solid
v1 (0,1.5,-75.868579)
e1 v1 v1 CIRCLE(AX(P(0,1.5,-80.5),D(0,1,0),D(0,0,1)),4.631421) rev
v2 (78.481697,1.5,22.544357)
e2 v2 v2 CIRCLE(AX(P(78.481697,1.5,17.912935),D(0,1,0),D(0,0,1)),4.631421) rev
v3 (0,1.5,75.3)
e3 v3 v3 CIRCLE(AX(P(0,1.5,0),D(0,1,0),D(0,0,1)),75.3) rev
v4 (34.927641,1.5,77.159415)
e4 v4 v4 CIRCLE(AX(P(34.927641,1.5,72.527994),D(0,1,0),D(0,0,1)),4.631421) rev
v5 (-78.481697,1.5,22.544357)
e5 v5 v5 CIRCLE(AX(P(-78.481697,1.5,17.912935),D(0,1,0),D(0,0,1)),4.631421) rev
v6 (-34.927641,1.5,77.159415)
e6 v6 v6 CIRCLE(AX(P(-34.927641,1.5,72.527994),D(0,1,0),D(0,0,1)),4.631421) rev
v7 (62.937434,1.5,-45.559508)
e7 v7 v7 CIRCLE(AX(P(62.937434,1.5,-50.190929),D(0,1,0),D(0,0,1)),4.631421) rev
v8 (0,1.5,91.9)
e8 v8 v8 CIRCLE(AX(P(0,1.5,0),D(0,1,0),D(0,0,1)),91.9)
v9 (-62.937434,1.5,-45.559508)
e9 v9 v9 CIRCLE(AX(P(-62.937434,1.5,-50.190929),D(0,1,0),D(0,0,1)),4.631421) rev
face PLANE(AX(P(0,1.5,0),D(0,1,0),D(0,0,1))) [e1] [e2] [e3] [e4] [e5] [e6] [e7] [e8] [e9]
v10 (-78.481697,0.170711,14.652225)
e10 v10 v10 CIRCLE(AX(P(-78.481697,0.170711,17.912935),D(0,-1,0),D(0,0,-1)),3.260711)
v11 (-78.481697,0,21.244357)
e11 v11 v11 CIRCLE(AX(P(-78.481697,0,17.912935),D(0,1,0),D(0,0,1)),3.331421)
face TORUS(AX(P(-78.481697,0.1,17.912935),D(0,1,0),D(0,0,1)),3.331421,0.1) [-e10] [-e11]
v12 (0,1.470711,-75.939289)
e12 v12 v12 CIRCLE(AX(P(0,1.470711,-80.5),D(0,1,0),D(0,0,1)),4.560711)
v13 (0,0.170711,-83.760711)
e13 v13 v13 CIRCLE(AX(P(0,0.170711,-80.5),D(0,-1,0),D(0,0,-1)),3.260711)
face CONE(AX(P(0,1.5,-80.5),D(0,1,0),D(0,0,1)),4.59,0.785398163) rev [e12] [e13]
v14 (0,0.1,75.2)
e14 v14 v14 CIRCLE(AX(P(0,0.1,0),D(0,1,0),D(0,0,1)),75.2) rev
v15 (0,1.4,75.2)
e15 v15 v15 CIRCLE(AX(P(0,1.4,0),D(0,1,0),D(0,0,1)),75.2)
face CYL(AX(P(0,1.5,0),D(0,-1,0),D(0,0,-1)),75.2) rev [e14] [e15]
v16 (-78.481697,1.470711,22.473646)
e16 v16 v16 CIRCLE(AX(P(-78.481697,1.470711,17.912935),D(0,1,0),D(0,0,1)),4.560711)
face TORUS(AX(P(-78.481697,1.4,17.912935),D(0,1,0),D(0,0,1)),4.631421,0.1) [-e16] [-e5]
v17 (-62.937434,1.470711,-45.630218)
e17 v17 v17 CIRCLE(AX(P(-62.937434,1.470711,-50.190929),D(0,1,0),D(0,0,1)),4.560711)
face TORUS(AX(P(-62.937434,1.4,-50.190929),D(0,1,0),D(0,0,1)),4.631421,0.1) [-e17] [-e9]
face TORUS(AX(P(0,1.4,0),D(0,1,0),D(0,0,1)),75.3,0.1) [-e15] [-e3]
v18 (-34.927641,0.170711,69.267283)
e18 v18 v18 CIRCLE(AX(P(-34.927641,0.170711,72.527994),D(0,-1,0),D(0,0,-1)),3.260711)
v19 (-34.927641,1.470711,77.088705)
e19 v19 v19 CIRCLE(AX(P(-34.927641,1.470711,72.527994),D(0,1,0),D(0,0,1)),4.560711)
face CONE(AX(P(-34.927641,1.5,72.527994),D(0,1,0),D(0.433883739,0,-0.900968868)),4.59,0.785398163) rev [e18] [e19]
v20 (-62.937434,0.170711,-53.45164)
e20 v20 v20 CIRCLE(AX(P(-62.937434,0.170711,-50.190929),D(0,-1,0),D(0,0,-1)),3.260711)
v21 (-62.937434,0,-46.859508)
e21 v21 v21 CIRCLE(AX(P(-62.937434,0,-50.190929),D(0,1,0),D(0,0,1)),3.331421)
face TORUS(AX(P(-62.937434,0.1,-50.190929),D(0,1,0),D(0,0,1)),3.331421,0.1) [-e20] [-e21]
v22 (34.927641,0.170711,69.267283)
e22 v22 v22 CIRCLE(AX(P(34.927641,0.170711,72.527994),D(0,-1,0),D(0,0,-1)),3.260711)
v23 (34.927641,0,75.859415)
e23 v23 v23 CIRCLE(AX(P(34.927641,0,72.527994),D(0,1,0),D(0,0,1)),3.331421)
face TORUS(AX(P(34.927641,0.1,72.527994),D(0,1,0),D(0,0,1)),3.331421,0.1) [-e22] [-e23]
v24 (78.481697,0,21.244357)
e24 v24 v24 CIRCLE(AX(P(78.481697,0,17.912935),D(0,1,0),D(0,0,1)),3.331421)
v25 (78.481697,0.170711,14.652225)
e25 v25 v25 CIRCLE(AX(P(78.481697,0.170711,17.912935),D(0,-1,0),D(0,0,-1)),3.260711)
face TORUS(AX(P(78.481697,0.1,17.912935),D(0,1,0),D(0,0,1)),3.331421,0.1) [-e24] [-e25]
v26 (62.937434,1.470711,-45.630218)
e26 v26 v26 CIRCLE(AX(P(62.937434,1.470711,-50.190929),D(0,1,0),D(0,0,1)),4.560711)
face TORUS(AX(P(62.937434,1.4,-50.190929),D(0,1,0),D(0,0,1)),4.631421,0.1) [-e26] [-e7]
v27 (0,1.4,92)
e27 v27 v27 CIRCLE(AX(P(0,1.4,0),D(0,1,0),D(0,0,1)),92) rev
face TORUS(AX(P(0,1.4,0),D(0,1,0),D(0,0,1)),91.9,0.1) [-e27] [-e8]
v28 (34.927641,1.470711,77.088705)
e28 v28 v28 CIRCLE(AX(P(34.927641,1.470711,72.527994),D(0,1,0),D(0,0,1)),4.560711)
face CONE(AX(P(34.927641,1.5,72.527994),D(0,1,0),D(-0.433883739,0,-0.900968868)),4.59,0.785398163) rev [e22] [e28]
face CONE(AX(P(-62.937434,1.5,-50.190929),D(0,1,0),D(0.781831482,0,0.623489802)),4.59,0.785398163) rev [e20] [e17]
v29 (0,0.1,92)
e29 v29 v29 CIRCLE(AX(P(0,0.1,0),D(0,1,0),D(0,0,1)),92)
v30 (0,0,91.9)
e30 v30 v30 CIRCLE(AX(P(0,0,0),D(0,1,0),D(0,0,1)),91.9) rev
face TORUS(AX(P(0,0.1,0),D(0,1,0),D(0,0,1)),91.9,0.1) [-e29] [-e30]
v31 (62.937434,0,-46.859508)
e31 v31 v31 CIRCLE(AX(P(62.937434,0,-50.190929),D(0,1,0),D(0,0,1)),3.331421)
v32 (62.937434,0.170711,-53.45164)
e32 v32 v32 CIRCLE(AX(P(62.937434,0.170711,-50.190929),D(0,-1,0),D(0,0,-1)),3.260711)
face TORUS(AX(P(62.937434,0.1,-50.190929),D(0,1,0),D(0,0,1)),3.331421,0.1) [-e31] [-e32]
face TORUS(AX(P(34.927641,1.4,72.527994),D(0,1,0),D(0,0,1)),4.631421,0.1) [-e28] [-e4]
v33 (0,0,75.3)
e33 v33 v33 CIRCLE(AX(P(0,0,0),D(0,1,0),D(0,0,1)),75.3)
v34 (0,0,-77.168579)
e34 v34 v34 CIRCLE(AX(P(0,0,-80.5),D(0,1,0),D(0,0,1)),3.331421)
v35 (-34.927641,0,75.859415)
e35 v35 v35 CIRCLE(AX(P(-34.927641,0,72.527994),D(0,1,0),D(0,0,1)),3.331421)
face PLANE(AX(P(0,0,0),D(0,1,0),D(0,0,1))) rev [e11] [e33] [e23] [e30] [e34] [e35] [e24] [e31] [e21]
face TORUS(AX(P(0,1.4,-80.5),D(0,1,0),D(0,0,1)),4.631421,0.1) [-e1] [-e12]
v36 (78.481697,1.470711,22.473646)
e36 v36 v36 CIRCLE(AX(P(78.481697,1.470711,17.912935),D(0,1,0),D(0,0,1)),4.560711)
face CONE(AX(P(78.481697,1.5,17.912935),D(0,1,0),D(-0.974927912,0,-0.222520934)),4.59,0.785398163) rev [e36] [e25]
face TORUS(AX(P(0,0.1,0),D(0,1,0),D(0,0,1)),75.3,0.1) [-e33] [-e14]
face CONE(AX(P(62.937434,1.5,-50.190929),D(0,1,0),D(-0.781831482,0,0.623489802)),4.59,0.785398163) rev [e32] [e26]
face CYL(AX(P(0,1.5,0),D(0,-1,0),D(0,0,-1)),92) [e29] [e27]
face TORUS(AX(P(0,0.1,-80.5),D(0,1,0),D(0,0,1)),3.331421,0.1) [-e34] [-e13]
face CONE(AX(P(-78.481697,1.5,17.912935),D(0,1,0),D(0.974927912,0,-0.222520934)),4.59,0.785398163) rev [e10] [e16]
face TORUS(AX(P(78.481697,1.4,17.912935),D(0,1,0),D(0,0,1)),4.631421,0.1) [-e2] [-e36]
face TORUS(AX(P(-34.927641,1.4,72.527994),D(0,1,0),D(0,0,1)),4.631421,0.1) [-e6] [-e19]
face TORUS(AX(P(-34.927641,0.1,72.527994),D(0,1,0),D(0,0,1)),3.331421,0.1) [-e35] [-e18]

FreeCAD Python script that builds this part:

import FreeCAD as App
import Part
import Sketcher
from FreeCAD import Vector
Q = App.Units.Quantity


def edges_at(feature, points):
    """Names of the edges that pass closest to the given points."""
    edges = feature.Shape.Edges
    near = lambda p: min(range(len(edges)), key=lambda i: edges[i].distToShape(Part.Vertex(*p))[0])
    return sorted({f"Edge{near(p) + 1}" for p in points})

doc = App.newDocument("Part")
body = doc.addObject("PartDesign::Body", "Body")

# Sketch on XZ plane
sketch1 = body.newObject("Sketcher::SketchObject", "Sketch")
sketch1.AttachmentSupport = (doc.getObject("XZ_Plane"), [""])
sketch1.MapMode = "FlatFace"
sketch1.addGeometry(Part.Circle(Vector(0, 0, 0), Vector(0, 0, 1), 92), False)
sketch1.addGeometry(Part.Circle(Vector(0, 0, 0), Vector(0, 0, 1), 75.2), False)
sketch1.addConstraint(Sketcher.Constraint("Coincident", 0, 3, -1, 1))
sketch1.addConstraint(Sketcher.Constraint("Coincident", 1, 3, -1, 1))
sketch1.addConstraint(Sketcher.Constraint("Diameter", 0, Q("184 mm")))
sketch1.addConstraint(Sketcher.Constraint("Diameter", 1, Q("150.4 mm")))
pad1 = body.newObject("PartDesign::Pad", "Pad")
pad1.Profile = sketch1
pad1.Length = 1.5
pad1.Reversed = True

# Sketch on YZ plane
sketch2 = body.newObject("Sketcher::SketchObject", "Sketch001")
sketch2.AttachmentSupport = (doc.getObject("YZ_Plane"), [""])
sketch2.MapMode = "FlatFace"
sketch2.addGeometry(Part.LineSegment(Vector(0, -80.5, 0), Vector(1.5, -80.5, 0)), False)
sketch2.addGeometry(Part.LineSegment(Vector(1.5, -80.5, 0), Vector(1.5, -75.91, 0)), False)
sketch2.addGeometry(Part.LineSegment(Vector(1.5, -75.91, 0), Vector(-0.84, -78.25, 0)), False)
sketch2.addGeometry(Part.LineSegment(Vector(-0.84, -78.25, 0), Vector(0, -78.25, 0)), False)
sketch2.addGeometry(Part.LineSegment(Vector(0, -78.25, 0), Vector(0, -80.5, 0)), False)
sketch2.addGeometry(Part.LineSegment(Vector(1.5, -80.5, 0), Vector(-0.84, -80.5, 0)), True)  # axis
sketch2.addConstraint(Sketcher.Constraint("Coincident", 0, 2, 1, 1))
sketch2.addConstraint(Sketcher.Constraint("Coincident", 1, 2, 2, 1))
sketch2.addConstraint(Sketcher.Constraint("Coincident", 2, 2, 3, 1))
sketch2.addConstraint(Sketcher.Constraint("Coincident", 3, 2, 4, 1))
sketch2.addConstraint(Sketcher.Constraint("Coincident", 4, 2, 0, 1))
sketch2.addConstraint(Sketcher.Constraint("Horizontal", 0))
sketch2.addConstraint(Sketcher.Constraint("Vertical", 1))
sketch2.addConstraint(Sketcher.Constraint("Horizontal", 3))
sketch2.addConstraint(Sketcher.Constraint("Vertical", 4))
sketch2.addConstraint(Sketcher.Constraint("Horizontal", 5))
sketch2.addConstraint(Sketcher.Constraint("Coincident", 5, 1, 0, 2))
sketch2.addConstraint(Sketcher.Constraint("PointOnObject", 3, 2, -2))
sketch2.addConstraint(Sketcher.Constraint("Vertical", 2, 2, 5, 2))
sketch2.addConstraint(Sketcher.Constraint("Angle", 2, Q("-135 deg")))
sketch2.addConstraint(Sketcher.Constraint("DistanceX", 0, 1, 0, 2, Q("1.5 mm")))
sketch2.addConstraint(Sketcher.Constraint("DistanceX", 3, 1, 3, 2, Q("0.84 mm")))
sketch2.addConstraint(Sketcher.Constraint("DistanceY", 1, 1, 1, 2, Q("4.59 mm")))
sketch2.addConstraint(Sketcher.Constraint("DistanceY", 0, 2, -1, 1, Q("80.5 mm")))
groove = body.newObject("PartDesign::Groove", "Groove")
groove.Profile = sketch2
groove.ReferenceAxis = (sketch2, ["Axis0"])
groove.Angle = 360
doc.recompute()

polarpattern = body.newObject("PartDesign::PolarPattern", "PolarPattern")
polarpattern.Originals = [groove]
polarpattern.Axis = (doc.getObject("Y_Axis"), [""])
polarpattern.Angle = 360
polarpattern.Occurrences = 7
body.Tip = polarpattern
doc.recompute()

fillet = body.newObject("PartDesign::Fillet", "Fillet")
fillet.Base = (polarpattern, edges_at(polarpattern, [
    (0, 0, -83.59),
    (0, 1.5, -85.09),
    (0, 0, -92),
    (66.526, 1.5, -53.053),
    (65.353, 0, -52.118),
    (82.957, 1.5, 18.934),
    (81.494, 0, 18.601),
    (36.919, 1.5, 76.663),
    (36.268, 0, 75.312),
    (-36.919, 1.5, 76.663),
    (-36.268, 0, 75.312),
    (-82.957, 1.5, 18.934),
    (-81.494, 0, 18.601),
    (-66.526, 1.5, -53.053),
    (-65.353, 0, -52.118),
    (0, 1.5, -92),
    (0, 0, -75.2),
    (0, 1.5, -75.2),
]))
fillet.Radius = 0.1

doc.recompute()
